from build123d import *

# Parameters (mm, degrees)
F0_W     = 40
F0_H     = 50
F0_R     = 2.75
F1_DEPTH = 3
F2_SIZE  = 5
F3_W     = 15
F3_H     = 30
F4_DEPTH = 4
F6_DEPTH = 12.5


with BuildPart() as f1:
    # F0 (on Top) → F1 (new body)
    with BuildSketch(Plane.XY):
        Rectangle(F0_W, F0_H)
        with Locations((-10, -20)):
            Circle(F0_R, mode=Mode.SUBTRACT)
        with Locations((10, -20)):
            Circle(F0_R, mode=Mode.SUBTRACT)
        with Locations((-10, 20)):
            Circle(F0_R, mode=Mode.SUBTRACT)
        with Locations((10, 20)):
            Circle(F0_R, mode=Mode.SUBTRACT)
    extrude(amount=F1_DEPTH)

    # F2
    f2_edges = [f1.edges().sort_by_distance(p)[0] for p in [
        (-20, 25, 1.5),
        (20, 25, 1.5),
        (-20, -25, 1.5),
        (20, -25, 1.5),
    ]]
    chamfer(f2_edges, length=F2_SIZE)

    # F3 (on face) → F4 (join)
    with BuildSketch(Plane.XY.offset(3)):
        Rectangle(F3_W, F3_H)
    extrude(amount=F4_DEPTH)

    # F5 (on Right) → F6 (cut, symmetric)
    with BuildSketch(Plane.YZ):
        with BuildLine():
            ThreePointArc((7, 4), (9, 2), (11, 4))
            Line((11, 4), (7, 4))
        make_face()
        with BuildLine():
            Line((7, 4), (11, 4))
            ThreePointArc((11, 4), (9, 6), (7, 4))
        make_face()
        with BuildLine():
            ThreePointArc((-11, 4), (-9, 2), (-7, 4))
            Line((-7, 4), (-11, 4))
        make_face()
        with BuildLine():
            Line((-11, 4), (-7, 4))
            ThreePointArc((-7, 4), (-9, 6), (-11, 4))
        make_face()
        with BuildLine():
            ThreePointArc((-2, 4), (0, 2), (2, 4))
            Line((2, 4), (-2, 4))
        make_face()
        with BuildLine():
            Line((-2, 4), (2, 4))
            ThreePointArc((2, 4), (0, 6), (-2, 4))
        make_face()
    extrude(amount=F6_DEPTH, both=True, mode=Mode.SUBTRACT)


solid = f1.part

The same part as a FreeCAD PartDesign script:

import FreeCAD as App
import Part
import Sketcher
from FreeCAD import Vector


def edges_at(feature, points):
    """Names of the edges that pass closest to the given points."""
    edges = feature.Shape.Edges
    near = lambda p: min(range(len(edges)), key=lambda i: edges[i].distToShape(Part.Vertex(*p))[0])
    return sorted({f"Edge{near(p) + 1}" for p in points})


def add_polygon(sketch, points):
    """Adds a closed chain of lines whose ends are joined by coincident constraints."""
    first, n = sketch.GeometryCount, len(points)
    for a, b in zip(points, points[1:] + points[:1]):
        sketch.addGeometry(Part.LineSegment(App.Vector(*a, 0), App.Vector(*b, 0)), False)
    for i in range(n):
        sketch.addConstraint(Sketcher.Constraint("Coincident", first + i, 2, first + (i + 1) % n, 1))

doc = App.newDocument("Part")
body = doc.addObject("PartDesign::Body", "Body")

sketch1 = doc.addObject("Sketcher::SketchObject", "Sketch")
body.addObject(sketch1)
sketch1.AttachmentSupport = (doc.XY_Plane, [""])
sketch1.MapMode = "FlatFace"
add_polygon(sketch1, [(-20, 25), (-20, -25), (20, -25), (20, 25)])
sketch1.addGeometry(Part.Circle(Vector(-10, -20, 0), Vector(0, 0, 1), 2.8), False)
sketch1.addGeometry(Part.Circle(Vector(10, -20, 0), Vector(0, 0, 1), 2.8), False)
sketch1.addGeometry(Part.Circle(Vector(-10, 20, 0), Vector(0, 0, 1), 2.8), False)
sketch1.addGeometry(Part.Circle(Vector(10, 20, 0), Vector(0, 0, 1), 2.8), False)
sketch1.addConstraint(Sketcher.Constraint("Vertical", 0))
sketch1.addConstraint(Sketcher.Constraint("Horizontal", 1))
sketch1.addConstraint(Sketcher.Constraint("Vertical", 2))
sketch1.addConstraint(Sketcher.Constraint("Horizontal", 3))
sketch1.addConstraint(Sketcher.Constraint("Equal", 4, 5))
sketch1.addConstraint(Sketcher.Constraint("Equal", 5, 6))
sketch1.addConstraint(Sketcher.Constraint("Equal", 6, 7))
sketch1.addConstraint(Sketcher.Constraint("Symmetric", 5, 3, 6, 3, -1, 1))
sketch1.addConstraint(Sketcher.Constraint("Symmetric", 4, 3, 7, 3, -1, 1))
sketch1.addConstraint(Sketcher.Constraint("Symmetric", 0, 2, 2, 2, -1, 1))
sketch1.addConstraint(Sketcher.Constraint("Symmetric", 4, 3, 5, 3, -2))
sketch1.addConstraint(Sketcher.Constraint("Diameter", 4, 5.5))
sketch1.addConstraint(Sketcher.Constraint("DistanceX", 1, 1, 1, 2, 40.0))
sketch1.addConstraint(Sketcher.Constraint("DistanceY", 0, 2, 0, 1, 50.0))
sketch1.addConstraint(Sketcher.Constraint("DistanceX", 4, 3, -1, 1, 10.0))
sketch1.addConstraint(Sketcher.Constraint("DistanceY", 4, 3, -1, 1, 20.0))
pad1 = doc.addObject("PartDesign::Pad", "Pad")
body.addObject(pad1)
pad1.Profile = sketch1
pad1.Length = 3
doc.recompute()

chamfer = doc.addObject("PartDesign::Chamfer", "Chamfer")
body.addObject(chamfer)
chamfer.Base = (pad1, edges_at(pad1, [
    (-20, 25, 1.5),
    (20, 25, 1.5),
    (-20, -25, 1.5),
    (20, -25, 1.5),
]))
chamfer.Size = 5

sketch2 = doc.addObject("Sketcher::SketchObject", "Sketch001")
body.addObject(sketch2)
sketch2.AttachmentSupport = (doc.XY_Plane, [""])
sketch2.MapMode = "FlatFace"
sketch2.AttachmentOffset = App.Placement(Vector(0, 0, 3), App.Rotation())
add_polygon(sketch2, [(-8, 15), (-8, -15), (8, -15), (8, 15)])
sketch2.addConstraint(Sketcher.Constraint("Vertical", 0))
sketch2.addConstraint(Sketcher.Constraint("Horizontal", 1))
sketch2.addConstraint(Sketcher.Constraint("Vertical", 2))
sketch2.addConstraint(Sketcher.Constraint("Horizontal", 3))
sketch2.addConstraint(Sketcher.Constraint("Symmetric", 0, 2, 2, 2, -1, 1))
sketch2.addConstraint(Sketcher.Constraint("DistanceX", 1, 1, 1, 2, 15.0))
sketch2.addConstraint(Sketcher.Constraint("DistanceY", 0, 2, 0, 1, 30.0))
pad2 = doc.addObject("PartDesign::Pad", "Pad001")
body.addObject(pad2)
pad2.Profile = sketch2
pad2.Length = 4

sketch3 = doc.addObject("Sketcher::SketchObject", "Sketch002")
body.addObject(sketch3)
sketch3.AttachmentSupport = (doc.YZ_Plane, [""])
sketch3.MapMode = "FlatFace"
sketch3.addGeometry(Part.Circle(Vector(9, 4, 0), Vector(0, 0, 1), 2), False)
sketch3.addGeometry(Part.Circle(Vector(-9, 4, 0), Vector(0, 0, 1), 2), False)
sketch3.addGeometry(Part.Circle(Vector(0, 4, 0), Vector(0, 0, 1), 2), False)
sketch3.addConstraint(Sketcher.Constraint("Equal", 0, 1))
sketch3.addConstraint(Sketcher.Constraint("Equal", 1, 2))
sketch3.addConstraint(Sketcher.Constraint("Symmetric", 0, 3, 1, 3, -2))
sketch3.addConstraint(Sketcher.Constraint("PointOnObject", 2, 3, -2))
sketch3.addConstraint(Sketcher.Constraint("Horizontal", 1, 3, 2, 3))
sketch3.addConstraint(Sketcher.Constraint("Diameter", 0, 4.0))
sketch3.addConstraint(Sketcher.Constraint("DistanceX", -1, 1, 0, 3, 9.0))
sketch3.addConstraint(Sketcher.Constraint("DistanceY", -1, 1, 0, 3, 4.0))
pocket1 = doc.addObject("PartDesign::Pocket", "Pocket")
body.addObject(pocket1)
pocket1.Profile = sketch3
pocket1.Length = 25
pocket1.Midplane = True

doc.recompute()
